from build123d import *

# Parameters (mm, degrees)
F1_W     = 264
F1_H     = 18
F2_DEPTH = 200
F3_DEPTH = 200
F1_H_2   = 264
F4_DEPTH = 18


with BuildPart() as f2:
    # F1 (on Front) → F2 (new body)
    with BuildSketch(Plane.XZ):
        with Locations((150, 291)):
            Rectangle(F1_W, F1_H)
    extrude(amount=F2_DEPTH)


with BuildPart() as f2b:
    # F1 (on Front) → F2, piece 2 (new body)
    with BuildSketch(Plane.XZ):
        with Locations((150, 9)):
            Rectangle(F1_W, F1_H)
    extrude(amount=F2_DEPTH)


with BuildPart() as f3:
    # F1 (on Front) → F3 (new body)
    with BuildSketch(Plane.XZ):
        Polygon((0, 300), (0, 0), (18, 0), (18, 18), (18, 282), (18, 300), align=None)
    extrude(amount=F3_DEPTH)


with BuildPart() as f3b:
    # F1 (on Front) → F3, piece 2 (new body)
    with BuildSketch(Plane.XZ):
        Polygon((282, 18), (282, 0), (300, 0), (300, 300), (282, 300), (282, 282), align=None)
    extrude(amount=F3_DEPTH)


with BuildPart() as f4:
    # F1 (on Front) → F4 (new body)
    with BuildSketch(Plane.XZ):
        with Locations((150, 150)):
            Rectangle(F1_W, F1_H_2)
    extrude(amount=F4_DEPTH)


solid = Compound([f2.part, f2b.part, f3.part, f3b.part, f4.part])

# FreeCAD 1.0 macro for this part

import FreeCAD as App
import Part
import Sketcher

V = App.Vector


def add_polygon(sketch, points):
    """Adds a closed chain of lines whose ends are joined by coincident constraints."""
    first, n = sketch.GeometryCount, len(points)
    for a, b in zip(points, points[1:] + points[:1]):
        sketch.addGeometry(Part.LineSegment(App.Vector(*a, 0), App.Vector(*b, 0)), False)
    for i in range(n):
        sketch.addConstraint(Sketcher.Constraint("Coincident", first + i, 2, first + (i + 1) % n, 1))

doc = App.newDocument("Part")
body = doc.addObject("PartDesign::Body", "Body")

# Sketch on XZ plane
sketch1 = body.newObject("Sketcher::SketchObject", "Sketch")
sketch1.AttachmentSupport = (doc.getObject("XZ_Plane"), [""])
sketch1.MapMode = "FlatFace"
add_polygon(sketch1, [(18, 300), (18, 282), (282, 282), (282, 300)])  # lines 0-3
sketch1.addConstraint([
    Sketcher.Constraint("Vertical", 0),
    Sketcher.Constraint("Horizontal", 1),
    Sketcher.Constraint("Vertical", 2),
    Sketcher.Constraint("Horizontal", 3),
    Sketcher.Constraint("DistanceX", 1, 1, 1, 2, 264.0),
    Sketcher.Constraint("DistanceY", 0, 2, 0, 1, 18.0),
    Sketcher.Constraint("DistanceX", -1, 1, 0, 2, 18.0),
    Sketcher.Constraint("DistanceY", -1, 1, 0, 2, 282.0),
])
pad1 = body.newObject("PartDesign::Pad", "Pad")
pad1.Profile = sketch1
pad1.Length = 200
body2 = doc.addObject("PartDesign::Body", "Body001")

# Sketch on XZ plane
sketch2 = body2.newObject("Sketcher::SketchObject", "Sketch001")
sketch2.AttachmentSupport = (doc.getObject("XZ_Plane001"), [""])
sketch2.MapMode = "FlatFace"
add_polygon(sketch2, [(18, 18), (18, 0), (282, 0), (282, 18)])  # lines 0-3
sketch2.addConstraint([
    Sketcher.Constraint("Vertical", 0),
    Sketcher.Constraint("Horizontal", 1),
    Sketcher.Constraint("Vertical", 2),
    Sketcher.Constraint("Horizontal", 3),
    Sketcher.Constraint("PointOnObject", 0, 2, -1),
    Sketcher.Constraint("DistanceX", 1, 1, 1, 2, 264.0),
    Sketcher.Constraint("DistanceY", 0, 2, 0, 1, 18.0),
    Sketcher.Constraint("DistanceX", -1, 1, 0, 2, 18.0),
])
pad2 = body2.newObject("PartDesign::Pad", "Pad001")
pad2.Profile = sketch2
pad2.Length = 200
body3 = doc.addObject("PartDesign::Body", "Body002")

# Sketch on XZ plane
sketch3 = body3.newObject("Sketcher::SketchObject", "Sketch002")
sketch3.AttachmentSupport = (doc.getObject("XZ_Plane002"), [""])
sketch3.MapMode = "FlatFace"
add_polygon(sketch3, [(0, 300), (0, 0), (18, 0), (18, 300)])  # lines 0-3
sketch3.addConstraint([
    Sketcher.Constraint("Vertical", 0),
    Sketcher.Constraint("Horizontal", 1),
    Sketcher.Constraint("Vertical", 2),
    Sketcher.Constraint("Horizontal", 3),
    Sketcher.Constraint("Coincident", 0, 2, -1, 1),
    Sketcher.Constraint("DistanceX", 1, 1, 1, 2, 18.0),
    Sketcher.Constraint("DistanceY", 0, 2, 0, 1, 300.0),
])
pad3 = body3.newObject("PartDesign::Pad", "Pad002")
pad3.Profile = sketch3
pad3.Length = 200
body4 = doc.addObject("PartDesign::Body", "Body003")

# Sketch on XZ plane
sketch4 = body4.newObject("Sketcher::SketchObject", "Sketch003")
sketch4.AttachmentSupport = (doc.getObject("XZ_Plane003"), [""])
sketch4.MapMode = "FlatFace"
add_polygon(sketch4, [(282, 0), (300, 0), (300, 300), (282, 300)])  # lines 0-3
sketch4.addConstraint([
    Sketcher.Constraint("Horizontal", 0),
    Sketcher.Constraint("Vertical", 1),
    Sketcher.Constraint("Horizontal", 2),
    Sketcher.Constraint("Vertical", 3),
    Sketcher.Constraint("PointOnObject", 0, 2, -1),
    Sketcher.Constraint("DistanceX", 0, 1, 0, 2, 18.0),
    Sketcher.Constraint("DistanceY", 1, 1, 1, 2, 300.0),
    Sketcher.Constraint("DistanceX", -1, 1, 0, 2, 300.0),
])
pad4 = body4.newObject("PartDesign::Pad", "Pad003")
pad4.Profile = sketch4
pad4.Length = 200
body5 = doc.addObject("PartDesign::Body", "Body004")

# Sketch on XZ plane
sketch5 = body5.newObject("Sketcher::SketchObject", "Sketch004")
sketch5.AttachmentSupport = (doc.getObject("XZ_Plane004"), [""])
sketch5.MapMode = "FlatFace"
add_polygon(sketch5, [(18, 282), (18, 18), (282, 18), (282, 282)])  # lines 0-3
sketch5.addConstraint([
    Sketcher.Constraint("Vertical", 0),
    Sketcher.Constraint("Horizontal", 1),
    Sketcher.Constraint("Vertical", 2),
    Sketcher.Constraint("Horizontal", 3),
    Sketcher.Constraint("Equal", 3, 0),
    Sketcher.Constraint("DistanceX", 1, 1, 1, 2, 264.0),
    Sketcher.Constraint("DistanceX", -1, 1, 0, 2, 18.0),
    Sketcher.Constraint("DistanceY", -1, 1, 0, 2, 18.0),
])
pad5 = body5.newObject("PartDesign::Pad", "Pad004")
pad5.Profile = sketch5
pad5.Length = 18

doc.recompute()
